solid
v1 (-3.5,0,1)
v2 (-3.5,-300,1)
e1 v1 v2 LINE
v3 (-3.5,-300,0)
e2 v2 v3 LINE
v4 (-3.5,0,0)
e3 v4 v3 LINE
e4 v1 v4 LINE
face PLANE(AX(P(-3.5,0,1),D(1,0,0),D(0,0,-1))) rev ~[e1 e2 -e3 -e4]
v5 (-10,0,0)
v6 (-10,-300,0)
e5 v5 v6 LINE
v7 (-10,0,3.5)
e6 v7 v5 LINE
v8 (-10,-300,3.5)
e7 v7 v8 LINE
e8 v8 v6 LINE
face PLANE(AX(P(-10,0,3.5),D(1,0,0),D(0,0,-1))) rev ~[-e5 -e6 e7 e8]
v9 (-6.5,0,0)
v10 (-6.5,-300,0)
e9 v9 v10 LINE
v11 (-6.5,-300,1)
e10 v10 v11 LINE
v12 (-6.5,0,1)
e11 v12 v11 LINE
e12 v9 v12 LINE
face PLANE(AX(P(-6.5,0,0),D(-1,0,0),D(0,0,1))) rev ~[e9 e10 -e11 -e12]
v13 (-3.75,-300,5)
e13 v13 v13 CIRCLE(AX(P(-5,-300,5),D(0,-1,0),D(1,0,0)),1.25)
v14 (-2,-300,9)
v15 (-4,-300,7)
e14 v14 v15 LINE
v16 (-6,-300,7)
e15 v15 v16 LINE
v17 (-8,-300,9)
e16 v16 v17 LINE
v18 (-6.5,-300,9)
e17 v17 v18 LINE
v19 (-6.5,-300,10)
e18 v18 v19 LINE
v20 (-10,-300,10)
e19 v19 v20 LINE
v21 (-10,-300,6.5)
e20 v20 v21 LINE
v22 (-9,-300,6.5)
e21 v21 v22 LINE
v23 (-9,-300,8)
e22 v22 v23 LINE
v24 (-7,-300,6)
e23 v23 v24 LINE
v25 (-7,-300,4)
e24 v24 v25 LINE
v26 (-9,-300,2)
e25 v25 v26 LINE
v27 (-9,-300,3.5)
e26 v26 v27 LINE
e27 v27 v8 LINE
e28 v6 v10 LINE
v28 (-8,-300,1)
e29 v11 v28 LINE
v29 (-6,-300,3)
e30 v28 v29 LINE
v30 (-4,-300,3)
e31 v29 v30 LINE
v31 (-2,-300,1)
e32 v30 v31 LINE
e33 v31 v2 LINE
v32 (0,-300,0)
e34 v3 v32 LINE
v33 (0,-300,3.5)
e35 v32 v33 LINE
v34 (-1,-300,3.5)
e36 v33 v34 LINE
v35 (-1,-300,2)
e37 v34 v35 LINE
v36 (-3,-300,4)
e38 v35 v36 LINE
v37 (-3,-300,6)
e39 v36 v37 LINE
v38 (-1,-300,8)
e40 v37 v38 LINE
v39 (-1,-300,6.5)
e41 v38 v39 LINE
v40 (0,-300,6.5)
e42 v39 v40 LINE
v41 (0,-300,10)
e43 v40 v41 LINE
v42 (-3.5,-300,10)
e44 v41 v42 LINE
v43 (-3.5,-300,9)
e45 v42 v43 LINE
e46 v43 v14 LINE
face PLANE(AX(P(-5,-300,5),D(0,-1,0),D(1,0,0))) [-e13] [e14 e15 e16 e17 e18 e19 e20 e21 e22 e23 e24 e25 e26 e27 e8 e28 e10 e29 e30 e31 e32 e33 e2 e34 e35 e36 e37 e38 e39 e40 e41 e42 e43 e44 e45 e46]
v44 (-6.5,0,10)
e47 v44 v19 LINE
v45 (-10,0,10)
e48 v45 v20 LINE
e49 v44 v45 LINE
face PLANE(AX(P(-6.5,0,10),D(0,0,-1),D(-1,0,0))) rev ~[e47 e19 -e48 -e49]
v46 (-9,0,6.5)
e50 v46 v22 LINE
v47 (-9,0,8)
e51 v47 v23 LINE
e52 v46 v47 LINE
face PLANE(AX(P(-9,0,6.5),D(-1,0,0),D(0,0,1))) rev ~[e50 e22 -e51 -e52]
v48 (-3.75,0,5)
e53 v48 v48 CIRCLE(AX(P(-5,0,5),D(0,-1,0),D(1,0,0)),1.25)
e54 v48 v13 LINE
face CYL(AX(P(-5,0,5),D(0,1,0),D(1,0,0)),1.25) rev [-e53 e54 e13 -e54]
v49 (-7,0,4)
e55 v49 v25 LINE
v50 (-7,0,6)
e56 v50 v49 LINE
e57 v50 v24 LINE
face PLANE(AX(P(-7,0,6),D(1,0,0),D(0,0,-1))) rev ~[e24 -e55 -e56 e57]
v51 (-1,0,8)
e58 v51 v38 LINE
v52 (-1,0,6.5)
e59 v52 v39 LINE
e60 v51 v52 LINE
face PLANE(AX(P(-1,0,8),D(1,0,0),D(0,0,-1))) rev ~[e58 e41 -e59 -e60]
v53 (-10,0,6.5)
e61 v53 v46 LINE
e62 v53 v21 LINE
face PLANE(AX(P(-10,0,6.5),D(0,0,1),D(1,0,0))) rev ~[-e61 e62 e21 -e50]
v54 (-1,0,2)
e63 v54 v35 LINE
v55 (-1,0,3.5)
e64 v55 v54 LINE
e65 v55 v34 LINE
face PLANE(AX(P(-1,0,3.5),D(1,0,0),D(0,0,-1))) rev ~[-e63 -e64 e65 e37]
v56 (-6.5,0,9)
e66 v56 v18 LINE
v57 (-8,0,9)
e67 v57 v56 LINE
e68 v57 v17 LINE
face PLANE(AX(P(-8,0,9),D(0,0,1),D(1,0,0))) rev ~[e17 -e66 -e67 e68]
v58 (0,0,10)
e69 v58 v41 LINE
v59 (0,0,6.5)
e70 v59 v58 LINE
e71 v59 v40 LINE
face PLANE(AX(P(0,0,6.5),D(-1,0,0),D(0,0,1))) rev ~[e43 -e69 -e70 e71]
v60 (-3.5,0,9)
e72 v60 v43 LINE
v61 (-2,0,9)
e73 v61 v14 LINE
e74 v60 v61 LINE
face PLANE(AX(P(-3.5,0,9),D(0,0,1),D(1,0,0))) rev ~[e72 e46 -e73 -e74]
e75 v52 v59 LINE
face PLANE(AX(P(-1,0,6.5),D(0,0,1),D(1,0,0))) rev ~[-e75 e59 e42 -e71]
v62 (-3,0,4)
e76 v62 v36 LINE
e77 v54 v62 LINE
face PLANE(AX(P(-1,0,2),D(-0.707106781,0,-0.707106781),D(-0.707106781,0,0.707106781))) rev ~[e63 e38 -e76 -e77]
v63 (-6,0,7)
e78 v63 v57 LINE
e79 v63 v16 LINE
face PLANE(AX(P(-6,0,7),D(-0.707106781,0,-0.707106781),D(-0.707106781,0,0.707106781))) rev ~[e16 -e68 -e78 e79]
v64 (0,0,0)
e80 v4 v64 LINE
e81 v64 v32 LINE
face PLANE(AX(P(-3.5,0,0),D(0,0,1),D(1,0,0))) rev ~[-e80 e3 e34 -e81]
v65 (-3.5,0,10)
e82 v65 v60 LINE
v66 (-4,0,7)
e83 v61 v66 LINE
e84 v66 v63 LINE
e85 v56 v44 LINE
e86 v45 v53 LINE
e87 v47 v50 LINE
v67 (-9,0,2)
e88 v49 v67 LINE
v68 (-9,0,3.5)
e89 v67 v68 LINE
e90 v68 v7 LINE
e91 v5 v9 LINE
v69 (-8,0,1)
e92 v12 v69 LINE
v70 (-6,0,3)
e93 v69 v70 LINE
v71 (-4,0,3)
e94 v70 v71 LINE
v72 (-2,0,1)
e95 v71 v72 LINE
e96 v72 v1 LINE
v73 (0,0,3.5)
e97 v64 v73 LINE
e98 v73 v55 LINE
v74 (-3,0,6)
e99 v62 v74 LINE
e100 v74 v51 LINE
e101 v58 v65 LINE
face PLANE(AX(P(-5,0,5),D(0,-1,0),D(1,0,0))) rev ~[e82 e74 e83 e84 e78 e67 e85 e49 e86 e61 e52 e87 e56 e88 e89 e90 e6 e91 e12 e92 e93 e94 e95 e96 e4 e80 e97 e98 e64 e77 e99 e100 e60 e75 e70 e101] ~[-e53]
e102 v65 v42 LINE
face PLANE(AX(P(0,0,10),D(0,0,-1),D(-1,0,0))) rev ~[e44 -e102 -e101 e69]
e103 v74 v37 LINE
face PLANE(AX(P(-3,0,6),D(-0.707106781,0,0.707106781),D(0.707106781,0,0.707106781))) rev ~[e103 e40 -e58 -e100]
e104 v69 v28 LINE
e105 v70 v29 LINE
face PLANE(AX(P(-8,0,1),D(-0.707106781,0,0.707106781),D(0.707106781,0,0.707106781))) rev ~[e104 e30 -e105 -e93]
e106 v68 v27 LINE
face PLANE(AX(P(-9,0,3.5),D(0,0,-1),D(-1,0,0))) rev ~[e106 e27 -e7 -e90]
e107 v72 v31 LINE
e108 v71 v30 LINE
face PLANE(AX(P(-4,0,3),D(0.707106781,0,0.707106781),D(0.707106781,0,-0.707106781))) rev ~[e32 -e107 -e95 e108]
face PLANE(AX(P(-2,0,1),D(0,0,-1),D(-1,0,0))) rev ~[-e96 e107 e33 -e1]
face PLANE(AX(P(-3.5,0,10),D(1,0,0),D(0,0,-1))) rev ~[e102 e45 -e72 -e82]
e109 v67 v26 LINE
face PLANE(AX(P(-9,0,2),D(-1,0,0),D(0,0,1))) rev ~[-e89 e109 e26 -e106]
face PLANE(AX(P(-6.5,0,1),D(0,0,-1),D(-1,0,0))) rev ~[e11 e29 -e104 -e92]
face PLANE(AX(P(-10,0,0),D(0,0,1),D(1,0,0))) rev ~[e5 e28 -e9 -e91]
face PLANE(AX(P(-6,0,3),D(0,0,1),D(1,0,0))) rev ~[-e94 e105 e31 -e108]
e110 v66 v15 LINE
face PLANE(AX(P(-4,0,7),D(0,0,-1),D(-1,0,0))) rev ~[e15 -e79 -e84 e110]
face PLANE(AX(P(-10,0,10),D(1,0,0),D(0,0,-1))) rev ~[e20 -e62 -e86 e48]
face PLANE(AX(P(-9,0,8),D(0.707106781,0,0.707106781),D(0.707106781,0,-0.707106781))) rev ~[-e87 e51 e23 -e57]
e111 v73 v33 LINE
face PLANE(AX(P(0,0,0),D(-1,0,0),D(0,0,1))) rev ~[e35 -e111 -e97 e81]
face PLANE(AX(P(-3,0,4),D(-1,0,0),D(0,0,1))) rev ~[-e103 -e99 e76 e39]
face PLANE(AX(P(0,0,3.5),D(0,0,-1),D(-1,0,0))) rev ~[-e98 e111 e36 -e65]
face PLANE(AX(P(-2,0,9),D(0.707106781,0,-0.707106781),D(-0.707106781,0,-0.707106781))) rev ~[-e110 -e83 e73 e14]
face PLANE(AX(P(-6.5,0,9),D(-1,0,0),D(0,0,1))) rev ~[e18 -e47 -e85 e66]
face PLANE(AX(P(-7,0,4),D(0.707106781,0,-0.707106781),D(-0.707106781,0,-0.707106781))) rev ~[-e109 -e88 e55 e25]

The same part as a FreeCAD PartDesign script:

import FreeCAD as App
import Part
import Sketcher

V = App.Vector
Q = App.Units.Quantity


def add_polygon(sketch, points):
    """Adds a closed chain of lines whose ends are joined by coincident constraints."""
    first, n = sketch.GeometryCount, len(points)
    for a, b in zip(points, points[1:] + points[:1]):
        sketch.addGeometry(Part.LineSegment(App.Vector(*a, 0), App.Vector(*b, 0)), False)
    for i in range(n):
        sketch.addConstraint(Sketcher.Constraint("Coincident", first + i, 2, first + (i + 1) % n, 1))

doc = App.newDocument("Part")
params = doc.addObject("Spreadsheet::Sheet", "Params")
for row, (alias, value) in enumerate([
    ("sketch1_diameter", "2.5 mm"),
    ("sketch1_width", "1 mm"),
    ("sketch1_width2", "2 mm"),
    ("sketch1_width3", "3.5 mm"),
    ("sketch1_width4", "1.5 mm"),
    ("pad1_length", "300 mm"),
], start=1):
    params.set(f"A{row}", alias)
    params.set(f"B{row}", "=" + value)
    params.setAlias(f"B{row}", alias)

body = doc.addObject("PartDesign::Body", "Body")

sketch1 = doc.addObject("Sketcher::SketchObject", "Sketch")
body.addObject(sketch1)
sketch1.AttachmentSupport = (doc.XZ_Plane, [""])
sketch1.MapMode = "FlatFace"
add_polygon(sketch1, [(-3.5, 0), (0, 0), (0, 3.5), (-1, 3.5), (-1, 2), (-3, 4), (-3, 6), (-1, 8), (-1, 6.5), (0, 6.5), (0, 10), (-3.5, 10), (-3.5, 9), (-2, 9), (-4, 7), (-6, 7), (-8, 9), (-6.5, 9), (-6.5, 10), (-10, 10), (-10, 6.5), (-9, 6.5), (-9, 8), (-7, 6), (-7, 4), (-9, 2), (-9, 3.5), (-10, 3.5), (-10, 0), (-6.5, 0), (-6.5, 1), (-8, 1), (-6, 3), (-4, 3), (-2, 1), (-3.5, 1)])
sketch1.addGeometry(Part.Circle(V(-5, 5, 0), V(0, 0, 1), 1.2), False)
sketch1.addConstraint([
    Sketcher.Constraint("Horizontal", 0),
    Sketcher.Constraint("Vertical", 1),
    Sketcher.Constraint("Horizontal", 2),
    Sketcher.Constraint("Vertical", 3),
    Sketcher.Constraint("Vertical", 5),
    Sketcher.Constraint("Vertical", 7),
    Sketcher.Constraint("Horizontal", 8),
    Sketcher.Constraint("Vertical", 9),
    Sketcher.Constraint("Horizontal", 10),
    Sketcher.Constraint("Vertical", 11),
    Sketcher.Constraint("Horizontal", 12),
    Sketcher.Constraint("Horizontal", 14),
    Sketcher.Constraint("Horizontal", 16),
    Sketcher.Constraint("Vertical", 17),
    Sketcher.Constraint("Horizontal", 18),
    Sketcher.Constraint("Vertical", 19),
    Sketcher.Constraint("Horizontal", 20),
    Sketcher.Constraint("Vertical", 21),
    Sketcher.Constraint("Vertical", 23),
    Sketcher.Constraint("Vertical", 25),
    Sketcher.Constraint("Horizontal", 26),
    Sketcher.Constraint("Vertical", 27),
    Sketcher.Constraint("Horizontal", 28),
    Sketcher.Constraint("Vertical", 29),
    Sketcher.Constraint("Horizontal", 30),
    Sketcher.Constraint("Horizontal", 32),
    Sketcher.Constraint("Horizontal", 34),
    Sketcher.Constraint("Vertical", 35),
    Sketcher.Constraint("Coincident", 0, 2, -1, 1),
    Sketcher.Constraint("PointOnObject", 8, 2, -2),
    Sketcher.Constraint("PointOnObject", 27, 2, -1),
    Sketcher.Constraint("Perpendicular", 4, 6),
    Sketcher.Constraint("Parallel", 6, 13),
    Sketcher.Constraint("Perpendicular", 13, 15),
    Sketcher.Constraint("Parallel", 15, 22),
    Sketcher.Constraint("Perpendicular", 22, 24),
    Sketcher.Constraint("Parallel", 24, 31),
    Sketcher.Constraint("Perpendicular", 31, 33),
    Sketcher.Constraint("Horizontal", 12, 2, 15, 2),
    Sketcher.Constraint("Horizontal", 10, 2, 17, 2),
    Sketcher.Constraint("Horizontal", 8, 2, 19, 2),
    Sketcher.Constraint("Horizontal", 6, 2, 21, 2),
    Sketcher.Constraint("Horizontal", 5, 2, 22, 2),
    Sketcher.Constraint("Horizontal", 4, 2, 23, 2),
    Sketcher.Constraint("Horizontal", 3, 2, 24, 2),
    Sketcher.Constraint("Horizontal", 2, 2, 25, 2),
    Sketcher.Constraint("Horizontal", 30, 2, 33, 2),
    Sketcher.Constraint("Vertical", 3, 2, 6, 2),
    Sketcher.Constraint("Vertical", 21, 2, 24, 2),
    Sketcher.Constraint("Vertical", 19, 2, 26, 2),
    Sketcher.Constraint("Vertical", 17, 2, 28, 2),
    Sketcher.Constraint("Vertical", 15, 2, 30, 2),
    Sketcher.Constraint("Vertical", 14, 2, 31, 2),
    Sketcher.Constraint("Vertical", 13, 2, 32, 2),
    Sketcher.Constraint("Vertical", 11, 2, 34, 2),
    Sketcher.Constraint("Equal", 12, 16),
    Sketcher.Constraint("Equal", 10, 18),
    Sketcher.Constraint("Equal", 8, 20),
    Sketcher.Constraint("Equal", 28, 1),
    Sketcher.Constraint("Equal", 34, 3),
    Sketcher.Constraint("Equal", 32, 5),
    Sketcher.Constraint("Equal", 3, 7),
    Sketcher.Constraint("Equal", 1, 9),
    Sketcher.Constraint("Equal", 26, 11),
    Sketcher.Constraint("Equal", 17, 29),
    Sketcher.Constraint("Equal", 6, 13),
    Sketcher.Constraint("Diameter", 36, Q("2.5 mm")),
    Sketcher.Constraint("DistanceX", 2, 2, 2, 1, Q("1 mm")),
    Sketcher.Constraint("DistanceX", 14, 2, 14, 1, Q("2 mm")),
    Sketcher.Constraint("DistanceX", 0, 1, 0, 2, Q("3.5 mm")),
    Sketcher.Constraint("DistanceX", 12, 1, 12, 2, Q("1.5 mm")),
    Sketcher.Constraint("DistanceX", 36, 3, -1, 1, Q("5 mm")),
    Sketcher.Constraint("DistanceY", -1, 1, 36, 3, Q("5 mm")),
    Sketcher.Constraint("DistanceX", 4, 2, -1, 1, Q("3 mm")),
])
sketch1.setExpression("Constraints[102]", "Params.sketch1_diameter")
sketch1.setExpression("Constraints[103]", "Params.sketch1_width")
sketch1.setExpression("Constraints[104]", "Params.sketch1_width2")
sketch1.setExpression("Constraints[105]", "Params.sketch1_width3")
sketch1.setExpression("Constraints[106]", "Params.sketch1_width4")
pad1 = doc.addObject("PartDesign::Pad", "Pad")
body.addObject(pad1)
pad1.Profile = sketch1
pad1.setExpression("Length", "Params.pad1_length")

doc.recompute()
